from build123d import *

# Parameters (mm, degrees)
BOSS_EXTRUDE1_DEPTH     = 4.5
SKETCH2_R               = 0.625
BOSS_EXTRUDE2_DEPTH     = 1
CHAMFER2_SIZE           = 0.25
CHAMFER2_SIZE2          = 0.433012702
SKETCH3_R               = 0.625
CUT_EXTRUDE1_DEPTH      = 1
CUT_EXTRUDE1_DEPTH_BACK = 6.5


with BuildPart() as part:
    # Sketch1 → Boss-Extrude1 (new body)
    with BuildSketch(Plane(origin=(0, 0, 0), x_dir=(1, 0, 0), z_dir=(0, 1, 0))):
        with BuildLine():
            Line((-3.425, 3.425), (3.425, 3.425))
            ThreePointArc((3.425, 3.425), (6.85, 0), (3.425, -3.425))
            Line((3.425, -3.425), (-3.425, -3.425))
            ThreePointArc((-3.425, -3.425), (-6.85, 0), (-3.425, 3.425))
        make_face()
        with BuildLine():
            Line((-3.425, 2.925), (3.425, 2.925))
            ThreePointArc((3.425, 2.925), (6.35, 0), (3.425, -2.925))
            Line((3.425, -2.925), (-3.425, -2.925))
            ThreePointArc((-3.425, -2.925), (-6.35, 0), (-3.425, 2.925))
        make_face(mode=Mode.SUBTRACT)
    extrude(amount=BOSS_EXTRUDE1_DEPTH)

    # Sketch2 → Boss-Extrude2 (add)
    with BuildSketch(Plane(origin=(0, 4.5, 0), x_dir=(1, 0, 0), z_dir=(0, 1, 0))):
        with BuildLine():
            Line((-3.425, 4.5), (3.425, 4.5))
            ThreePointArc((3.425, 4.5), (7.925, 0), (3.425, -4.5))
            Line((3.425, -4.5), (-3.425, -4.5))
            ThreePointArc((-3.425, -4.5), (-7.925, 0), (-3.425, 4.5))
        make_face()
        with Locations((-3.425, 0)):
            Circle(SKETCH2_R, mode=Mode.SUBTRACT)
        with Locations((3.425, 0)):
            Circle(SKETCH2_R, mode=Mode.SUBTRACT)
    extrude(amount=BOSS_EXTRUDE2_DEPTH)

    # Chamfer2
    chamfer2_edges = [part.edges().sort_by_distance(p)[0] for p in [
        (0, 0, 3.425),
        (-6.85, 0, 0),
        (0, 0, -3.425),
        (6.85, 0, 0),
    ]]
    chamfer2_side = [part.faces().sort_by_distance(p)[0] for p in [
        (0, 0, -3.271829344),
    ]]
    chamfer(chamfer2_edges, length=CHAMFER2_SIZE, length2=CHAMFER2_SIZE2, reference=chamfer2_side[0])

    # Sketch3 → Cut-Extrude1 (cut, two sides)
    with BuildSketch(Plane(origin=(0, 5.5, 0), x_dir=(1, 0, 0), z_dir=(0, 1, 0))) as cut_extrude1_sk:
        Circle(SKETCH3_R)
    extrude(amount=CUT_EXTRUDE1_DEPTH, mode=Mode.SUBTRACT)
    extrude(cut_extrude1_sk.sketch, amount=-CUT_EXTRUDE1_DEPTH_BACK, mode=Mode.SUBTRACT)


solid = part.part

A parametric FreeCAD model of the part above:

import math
import FreeCAD as App
import Part
import Sketcher
from FreeCAD import Vector
Q = App.Units.Quantity


def edges_at(feature, points):
    """Names of the edges that pass closest to the given points."""
    edges = feature.Shape.Edges
    near = lambda p: min(range(len(edges)), key=lambda i: edges[i].distToShape(Part.Vertex(*p))[0])
    return sorted({f"Edge{near(p) + 1}" for p in points})

doc = App.newDocument("Part")
params = doc.addObject("Spreadsheet::Sheet", "Params")
for row, (alias, value) in enumerate([
    ("sketch1_width", "6.85 mm"),
    ("pad1_length", "4.5 mm"),
    ("sketch2_radius", "4.5 mm"),
    ("sketch2_diameter", "1.25 mm"),
    ("sketch2_width", "6.85 mm"),
    ("pad2_length", "1 mm"),
    ("chamfer_size", "0.25 mm"),
    ("chamfer_size2", "0.433013 mm"),
    ("sketch3_diameter", "1.25 mm"),
], start=1):
    params.set(f"A{row}", alias)
    params.set(f"B{row}", "=" + value)
    params.setAlias(f"B{row}", alias)

body = doc.addObject("PartDesign::Body", "Body")

# Sketch on XZ plane
sketch1 = body.newObject("Sketcher::SketchObject", "Sketch")
sketch1.AttachmentSupport = (doc.getObject("XZ_Plane"), [""])
sketch1.MapMode = "FlatFace"
sketch1.addGeometry(Part.LineSegment(Vector(3.425, -3.425, 0), Vector(-3.425, -3.425, 0)), False)
sketch1.addGeometry(Part.ArcOfCircle(Part.Circle(Vector(-3.425, 0, 0), Vector(0, 0, 1), 3.425), math.radians(90), math.radians(270)), False)
sketch1.addGeometry(Part.LineSegment(Vector(-3.425, 3.425, 0), Vector(3.425, 3.425, 0)), False)
sketch1.addGeometry(Part.ArcOfCircle(Part.Circle(Vector(3.425, 0, 0), Vector(0, 0, 1), 3.425), math.radians(-90), math.radians(90)), False)
sketch1.addGeometry(Part.LineSegment(Vector(-3.425, -2.925, 0), Vector(3.425, -2.925, 0)), False)
sketch1.addGeometry(Part.ArcOfCircle(Part.Circle(Vector(3.425, 0, 0), Vector(0, 0, 1), 2.925), math.radians(-90), math.radians(90)), False)
sketch1.addGeometry(Part.LineSegment(Vector(3.425, 2.925, 0), Vector(-3.425, 2.925, 0)), False)
sketch1.addGeometry(Part.ArcOfCircle(Part.Circle(Vector(-3.425, 0, 0), Vector(0, 0, 1), 2.925), math.radians(90), math.radians(270)), False)
sketch1.addConstraint(Sketcher.Constraint("Tangent", 0, 2, 1, 2))
sketch1.addConstraint(Sketcher.Constraint("Tangent", 1, 1, 2, 1))
sketch1.addConstraint(Sketcher.Constraint("Tangent", 2, 2, 3, 2))
sketch1.addConstraint(Sketcher.Constraint("Tangent", 3, 1, 0, 1))
sketch1.addConstraint(Sketcher.Constraint("Tangent", 4, 2, 5, 1))
sketch1.addConstraint(Sketcher.Constraint("Tangent", 5, 2, 6, 1))
sketch1.addConstraint(Sketcher.Constraint("Tangent", 6, 2, 7, 1))
sketch1.addConstraint(Sketcher.Constraint("Tangent", 7, 2, 4, 1))
sketch1.addConstraint(Sketcher.Constraint("Horizontal", 0))
sketch1.addConstraint(Sketcher.Constraint("Horizontal", 2))
sketch1.addConstraint(Sketcher.Constraint("Horizontal", 4))
sketch1.addConstraint(Sketcher.Constraint("Horizontal", 6))
sketch1.addConstraint(Sketcher.Constraint("Coincident", 5, 3, 3, 3))
sketch1.addConstraint(Sketcher.Constraint("Symmetric", 1, 3, 3, 3, -1, 1))
sketch1.addConstraint(Sketcher.Constraint("Vertical", 7, 3, 0, 2))
sketch1.addConstraint(Sketcher.Constraint("Radius", 1, Q("3.425 mm")))
sketch1.addConstraint(Sketcher.Constraint("Radius", 5, Q("2.925 mm")))
sketch1.addConstraint(Sketcher.Constraint("DistanceX", 0, 2, 0, 1, Q("6.85 mm")))
sketch1.setExpression("Constraints[17]", "Params.sketch1_width")
pad1 = body.newObject("PartDesign::Pad", "Pad")
pad1.Profile = sketch1
pad1.setExpression("Length", "Params.pad1_length")
pad1.Reversed = True

# Sketch on XZ plane
sketch2 = body.newObject("Sketcher::SketchObject", "Sketch001")
sketch2.AttachmentSupport = (doc.getObject("XZ_Plane"), [""])
sketch2.MapMode = "FlatFace"
sketch2.AttachmentOffset = App.Placement(Vector(0, 0, -4.5), App.Rotation())
sketch2.addGeometry(Part.LineSegment(Vector(3.425, -4.5, 0), Vector(-3.425, -4.5, 0)), False)
sketch2.addGeometry(Part.ArcOfCircle(Part.Circle(Vector(-3.425, 0, 0), Vector(0, 0, 1), 4.5), math.radians(90), math.radians(270)), False)
sketch2.addGeometry(Part.LineSegment(Vector(-3.425, 4.5, 0), Vector(3.425, 4.5, 0)), False)
sketch2.addGeometry(Part.ArcOfCircle(Part.Circle(Vector(3.425, 0, 0), Vector(0, 0, 1), 4.5), math.radians(-90), math.radians(90)), False)
sketch2.addGeometry(Part.Circle(Vector(3.425, 0, 0), Vector(0, 0, 1), 0.625), False)
sketch2.addGeometry(Part.Circle(Vector(-3.425, 0, 0), Vector(0, 0, 1), 0.625), False)
sketch2.addConstraint(Sketcher.Constraint("Tangent", 0, 2, 1, 2))
sketch2.addConstraint(Sketcher.Constraint("Tangent", 1, 1, 2, 1))
sketch2.addConstraint(Sketcher.Constraint("Tangent", 2, 2, 3, 2))
sketch2.addConstraint(Sketcher.Constraint("Tangent", 3, 1, 0, 1))
sketch2.addConstraint(Sketcher.Constraint("Horizontal", 0))
sketch2.addConstraint(Sketcher.Constraint("Horizontal", 2))
sketch2.addConstraint(Sketcher.Constraint("Coincident", 4, 3, 3, 3))
sketch2.addConstraint(Sketcher.Constraint("Coincident", 5, 3, 1, 3))
sketch2.addConstraint(Sketcher.Constraint("Equal", 4, 5))
sketch2.addConstraint(Sketcher.Constraint("Symmetric", 1, 3, 3, 3, -1, 1))
sketch2.addConstraint(Sketcher.Constraint("Radius", 1, Q("4.5 mm")))
sketch2.addConstraint(Sketcher.Constraint("Diameter", 4, Q("1.25 mm")))
sketch2.addConstraint(Sketcher.Constraint("DistanceX", 0, 2, 0, 1, Q("6.85 mm")))
sketch2.setExpression("Constraints[10]", "Params.sketch2_radius")
sketch2.setExpression("Constraints[11]", "Params.sketch2_diameter")
sketch2.setExpression("Constraints[12]", "Params.sketch2_width")
pad2 = body.newObject("PartDesign::Pad", "Pad001")
pad2.Profile = sketch2
pad2.setExpression("Length", "Params.pad2_length")
pad2.Reversed = True
doc.recompute()

chamfer = body.newObject("PartDesign::Chamfer", "Chamfer")
chamfer.Base = (pad2, edges_at(pad2, [
    (0, 0, 3.425),
    (-6.85, 0, 0),
    (0, 0, -3.425),
    (6.85, 0, 0),
]))
chamfer.ChamferType = "Two distances"
chamfer.setExpression("Size", "Params.chamfer_size")
chamfer.setExpression("Size2", "Params.chamfer_size2")

# Sketch on XZ plane
sketch3 = body.newObject("Sketcher::SketchObject", "Sketch002")
sketch3.AttachmentSupport = (doc.getObject("XZ_Plane"), [""])
sketch3.MapMode = "FlatFace"
sketch3.AttachmentOffset = App.Placement(Vector(0, 0, -5.5), App.Rotation())
sketch3.addGeometry(Part.Circle(Vector(0, 0, 0), Vector(0, 0, 1), 0.625), False)
sketch3.addConstraint(Sketcher.Constraint("Coincident", 0, 3, -1, 1))
sketch3.addConstraint(Sketcher.Constraint("Diameter", 0, Q("1.25 mm")))
sketch3.setExpression("Constraints[1]", "Params.sketch3_diameter")
pocket1 = body.newObject("PartDesign::Pocket", "Pocket")
pocket1.Profile = sketch3
pocket1.Type = "ThroughAll"
pocket1.Midplane = True

doc.recompute()
